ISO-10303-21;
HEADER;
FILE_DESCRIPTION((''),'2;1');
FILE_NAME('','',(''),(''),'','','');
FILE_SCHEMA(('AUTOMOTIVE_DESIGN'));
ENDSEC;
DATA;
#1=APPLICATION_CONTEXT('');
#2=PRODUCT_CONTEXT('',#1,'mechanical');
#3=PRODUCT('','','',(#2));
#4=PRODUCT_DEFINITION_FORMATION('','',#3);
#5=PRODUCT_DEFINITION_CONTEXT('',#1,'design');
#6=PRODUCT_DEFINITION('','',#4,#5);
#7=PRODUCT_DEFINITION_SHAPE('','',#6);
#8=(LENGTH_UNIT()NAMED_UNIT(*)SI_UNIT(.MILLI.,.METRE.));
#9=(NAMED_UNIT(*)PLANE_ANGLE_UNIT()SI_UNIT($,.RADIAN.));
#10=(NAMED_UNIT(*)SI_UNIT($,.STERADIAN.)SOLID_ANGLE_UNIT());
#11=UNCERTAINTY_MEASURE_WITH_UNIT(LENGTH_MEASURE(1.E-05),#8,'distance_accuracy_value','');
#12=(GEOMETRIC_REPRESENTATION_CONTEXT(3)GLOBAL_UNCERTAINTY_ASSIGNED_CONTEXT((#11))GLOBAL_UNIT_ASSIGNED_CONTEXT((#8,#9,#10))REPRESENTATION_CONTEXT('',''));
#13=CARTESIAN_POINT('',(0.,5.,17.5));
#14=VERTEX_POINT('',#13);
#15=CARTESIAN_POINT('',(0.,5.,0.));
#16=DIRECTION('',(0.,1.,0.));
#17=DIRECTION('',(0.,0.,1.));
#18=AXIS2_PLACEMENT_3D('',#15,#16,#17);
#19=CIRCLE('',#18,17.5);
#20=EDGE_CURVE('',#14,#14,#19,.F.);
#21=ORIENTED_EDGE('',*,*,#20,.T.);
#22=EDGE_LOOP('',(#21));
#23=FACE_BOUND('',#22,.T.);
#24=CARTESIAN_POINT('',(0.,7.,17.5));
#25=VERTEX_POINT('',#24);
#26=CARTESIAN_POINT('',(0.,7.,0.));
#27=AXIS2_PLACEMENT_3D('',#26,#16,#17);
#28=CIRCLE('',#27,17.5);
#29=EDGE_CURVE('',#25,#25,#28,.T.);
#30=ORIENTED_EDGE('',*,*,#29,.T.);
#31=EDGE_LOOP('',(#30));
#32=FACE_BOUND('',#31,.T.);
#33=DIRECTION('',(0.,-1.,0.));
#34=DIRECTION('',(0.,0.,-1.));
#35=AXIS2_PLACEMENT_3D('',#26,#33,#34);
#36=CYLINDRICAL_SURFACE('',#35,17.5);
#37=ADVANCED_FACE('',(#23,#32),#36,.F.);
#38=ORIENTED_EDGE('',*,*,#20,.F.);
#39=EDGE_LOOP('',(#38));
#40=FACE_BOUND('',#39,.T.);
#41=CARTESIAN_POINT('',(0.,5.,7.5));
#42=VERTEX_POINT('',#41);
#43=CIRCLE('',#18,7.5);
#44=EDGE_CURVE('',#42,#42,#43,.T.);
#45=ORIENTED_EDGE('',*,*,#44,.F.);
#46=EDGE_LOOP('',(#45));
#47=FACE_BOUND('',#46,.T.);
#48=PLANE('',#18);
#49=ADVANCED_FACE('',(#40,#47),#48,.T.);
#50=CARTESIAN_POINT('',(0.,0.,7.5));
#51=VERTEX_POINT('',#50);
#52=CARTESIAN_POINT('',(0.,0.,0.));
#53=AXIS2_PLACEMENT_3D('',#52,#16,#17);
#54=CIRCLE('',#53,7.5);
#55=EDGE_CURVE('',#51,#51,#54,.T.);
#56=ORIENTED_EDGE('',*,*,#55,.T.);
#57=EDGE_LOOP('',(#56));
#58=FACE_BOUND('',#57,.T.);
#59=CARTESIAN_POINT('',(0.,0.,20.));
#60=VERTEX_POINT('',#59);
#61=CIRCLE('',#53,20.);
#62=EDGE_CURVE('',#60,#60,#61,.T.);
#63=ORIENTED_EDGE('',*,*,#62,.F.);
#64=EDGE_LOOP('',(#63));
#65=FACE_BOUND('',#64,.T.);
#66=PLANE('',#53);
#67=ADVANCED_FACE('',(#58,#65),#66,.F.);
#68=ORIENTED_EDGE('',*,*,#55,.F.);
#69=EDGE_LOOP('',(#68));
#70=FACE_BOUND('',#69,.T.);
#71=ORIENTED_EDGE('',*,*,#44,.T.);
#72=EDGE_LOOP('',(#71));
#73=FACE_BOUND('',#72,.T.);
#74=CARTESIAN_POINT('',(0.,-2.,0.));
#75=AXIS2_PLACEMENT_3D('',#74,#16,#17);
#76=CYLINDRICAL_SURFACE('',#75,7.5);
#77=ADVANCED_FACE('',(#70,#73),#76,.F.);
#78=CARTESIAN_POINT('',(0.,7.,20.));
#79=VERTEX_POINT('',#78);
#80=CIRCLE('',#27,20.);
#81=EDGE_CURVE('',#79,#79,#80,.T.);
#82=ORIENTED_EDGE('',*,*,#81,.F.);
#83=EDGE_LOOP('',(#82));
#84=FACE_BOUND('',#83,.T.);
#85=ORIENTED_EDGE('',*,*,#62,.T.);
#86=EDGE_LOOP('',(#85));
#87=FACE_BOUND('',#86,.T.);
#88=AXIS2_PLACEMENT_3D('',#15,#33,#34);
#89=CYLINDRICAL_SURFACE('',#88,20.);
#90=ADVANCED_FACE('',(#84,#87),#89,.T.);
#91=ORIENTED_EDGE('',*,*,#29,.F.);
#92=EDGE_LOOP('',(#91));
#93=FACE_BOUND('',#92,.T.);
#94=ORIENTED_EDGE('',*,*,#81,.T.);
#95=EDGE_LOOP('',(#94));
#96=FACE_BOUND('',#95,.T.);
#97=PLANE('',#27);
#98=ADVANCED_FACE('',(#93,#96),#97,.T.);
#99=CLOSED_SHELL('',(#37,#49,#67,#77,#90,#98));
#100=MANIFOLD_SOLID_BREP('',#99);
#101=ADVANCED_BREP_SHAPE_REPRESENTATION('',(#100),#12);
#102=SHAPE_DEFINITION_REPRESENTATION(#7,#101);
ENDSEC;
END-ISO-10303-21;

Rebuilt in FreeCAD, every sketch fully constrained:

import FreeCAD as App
import Part
import Sketcher

V = App.Vector

doc = App.newDocument("Part")
params = doc.addObject("Spreadsheet::Sheet", "Params")
for row, (alias, value) in enumerate([
    ("sketch1_diameter", "40 mm"),
    ("pad1_length", "5 mm"),
    ("sketch2_diameter", "40 mm"),
    ("sketch2_diameter2", "35 mm"),
    ("pad2_length", "7 mm"),
    ("sketch3_diameter", "15 mm"),
    ("pocket1_length", "7 mm"),
], start=1):
    params.set(f"A{row}", alias)
    params.set(f"B{row}", "=" + value)
    params.setAlias(f"B{row}", alias)

body = doc.addObject("PartDesign::Body", "Body")

sketch1 = body.newObject("Sketcher::SketchObject", "Sketch")
sketch1.AttachmentSupport = (doc.getObject("XZ_Plane"), [""])
sketch1.MapMode = "FlatFace"
sketch1.addGeometry(Part.Circle(V(0, 0, 0), V(0, 0, 1), 20), False)
sketch1.addConstraint([
    Sketcher.Constraint("Coincident", 0, 3, -1, 1),
    Sketcher.Constraint("Diameter", 0, 40.0),
])
sketch1.setExpression("Constraints[1]", "Params.sketch1_diameter")
pad1 = body.newObject("PartDesign::Pad", "Pad")
pad1.Profile = sketch1
pad1.setExpression("Length", "Params.pad1_length")
pad1.Reversed = True

sketch2 = body.newObject("Sketcher::SketchObject", "Sketch001")
sketch2.AttachmentSupport = (doc.getObject("XZ_Plane"), [""])
sketch2.MapMode = "FlatFace"
sketch2.addGeometry([
    Part.Circle(V(0, 0, 0), V(0, 0, 1), 20),
    Part.Circle(V(0, 0, 0), V(0, 0, 1), 18),
], False)
sketch2.addConstraint([
    Sketcher.Constraint("Coincident", 0, 3, -1, 1),
    Sketcher.Constraint("Coincident", 1, 3, -1, 1),
    Sketcher.Constraint("Diameter", 0, 40.0),
    Sketcher.Constraint("Diameter", 1, 35.0),
])
sketch2.setExpression("Constraints[2]", "Params.sketch2_diameter")
sketch2.setExpression("Constraints[3]", "Params.sketch2_diameter2")
pad2 = body.newObject("PartDesign::Pad", "Pad001")
pad2.Profile = sketch2
pad2.setExpression("Length", "Params.pad2_length")
pad2.Reversed = True

sketch3 = body.newObject("Sketcher::SketchObject", "Sketch002")
sketch3.AttachmentSupport = (doc.getObject("XZ_Plane"), [""])
sketch3.MapMode = "FlatFace"
sketch3.AttachmentOffset = App.Placement(V(0, 0, -5), App.Rotation())
sketch3.addGeometry(Part.Circle(V(0, 0, 0), V(0, 0, 1), 8), False)
sketch3.addConstraint([
    Sketcher.Constraint("Coincident", 0, 3, -1, 1),
    Sketcher.Constraint("Diameter", 0, 15.0),
])
sketch3.setExpression("Constraints[1]", "Params.sketch3_diameter")
pocket1 = body.newObject("PartDesign::Pocket", "Pocket")
pocket1.Profile = sketch3
pocket1.setExpression("Length", "Params.pocket1_length")
pocket1.Reversed = True

doc.recompute()
